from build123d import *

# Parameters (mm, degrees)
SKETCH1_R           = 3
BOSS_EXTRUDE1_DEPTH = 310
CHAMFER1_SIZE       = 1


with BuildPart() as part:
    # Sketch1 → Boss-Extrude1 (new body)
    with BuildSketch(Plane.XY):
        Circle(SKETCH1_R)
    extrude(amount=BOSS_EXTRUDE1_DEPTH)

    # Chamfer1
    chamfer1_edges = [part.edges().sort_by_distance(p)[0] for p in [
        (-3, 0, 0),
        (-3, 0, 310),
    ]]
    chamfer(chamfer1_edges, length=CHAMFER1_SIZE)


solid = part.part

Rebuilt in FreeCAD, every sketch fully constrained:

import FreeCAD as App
import Part
import Sketcher
from FreeCAD import Vector


def edges_at(feature, points):
    """Names of the edges that pass closest to the given points."""
    edges = feature.Shape.Edges
    near = lambda p: min(range(len(edges)), key=lambda i: edges[i].distToShape(Part.Vertex(*p))[0])
    return sorted({f"Edge{near(p) + 1}" for p in points})

doc = App.newDocument("Part")
params = doc.addObject("Spreadsheet::Sheet", "Params")
for row, (alias, value) in enumerate([
    ("sketch1_diameter", "6 mm"),
    ("pad1_length", "310 mm"),
    ("chamfer_size", "1 mm"),
], start=1):
    params.set(f"A{row}", alias)
    params.set(f"B{row}", "=" + value)
    params.setAlias(f"B{row}", alias)

body = doc.addObject("PartDesign::Body", "Body")

sketch1 = body.newObject("Sketcher::SketchObject", "Sketch")
sketch1.AttachmentSupport = (doc.getObject("XY_Plane"), [""])
sketch1.MapMode = "FlatFace"
sketch1.addGeometry(Part.Circle(Vector(0, 0, 0), Vector(0, 0, 1), 3), False)
sketch1.addConstraint(Sketcher.Constraint("Coincident", 0, 3, -1, 1))
sketch1.addConstraint(Sketcher.Constraint("Diameter", 0, 6.0))
sketch1.setExpression("Constraints[1]", "Params.sketch1_diameter")
pad1 = body.newObject("PartDesign::Pad", "Pad")
pad1.Profile = sketch1
pad1.setExpression("Length", "Params.pad1_length")
doc.recompute()

chamfer = body.newObject("PartDesign::Chamfer", "Chamfer")
chamfer.Base = (pad1, edges_at(pad1, [(-3, 0, 0), (-3, 0, 310)]))
chamfer.setExpression("Size", "Params.chamfer_size")

doc.recompute()
